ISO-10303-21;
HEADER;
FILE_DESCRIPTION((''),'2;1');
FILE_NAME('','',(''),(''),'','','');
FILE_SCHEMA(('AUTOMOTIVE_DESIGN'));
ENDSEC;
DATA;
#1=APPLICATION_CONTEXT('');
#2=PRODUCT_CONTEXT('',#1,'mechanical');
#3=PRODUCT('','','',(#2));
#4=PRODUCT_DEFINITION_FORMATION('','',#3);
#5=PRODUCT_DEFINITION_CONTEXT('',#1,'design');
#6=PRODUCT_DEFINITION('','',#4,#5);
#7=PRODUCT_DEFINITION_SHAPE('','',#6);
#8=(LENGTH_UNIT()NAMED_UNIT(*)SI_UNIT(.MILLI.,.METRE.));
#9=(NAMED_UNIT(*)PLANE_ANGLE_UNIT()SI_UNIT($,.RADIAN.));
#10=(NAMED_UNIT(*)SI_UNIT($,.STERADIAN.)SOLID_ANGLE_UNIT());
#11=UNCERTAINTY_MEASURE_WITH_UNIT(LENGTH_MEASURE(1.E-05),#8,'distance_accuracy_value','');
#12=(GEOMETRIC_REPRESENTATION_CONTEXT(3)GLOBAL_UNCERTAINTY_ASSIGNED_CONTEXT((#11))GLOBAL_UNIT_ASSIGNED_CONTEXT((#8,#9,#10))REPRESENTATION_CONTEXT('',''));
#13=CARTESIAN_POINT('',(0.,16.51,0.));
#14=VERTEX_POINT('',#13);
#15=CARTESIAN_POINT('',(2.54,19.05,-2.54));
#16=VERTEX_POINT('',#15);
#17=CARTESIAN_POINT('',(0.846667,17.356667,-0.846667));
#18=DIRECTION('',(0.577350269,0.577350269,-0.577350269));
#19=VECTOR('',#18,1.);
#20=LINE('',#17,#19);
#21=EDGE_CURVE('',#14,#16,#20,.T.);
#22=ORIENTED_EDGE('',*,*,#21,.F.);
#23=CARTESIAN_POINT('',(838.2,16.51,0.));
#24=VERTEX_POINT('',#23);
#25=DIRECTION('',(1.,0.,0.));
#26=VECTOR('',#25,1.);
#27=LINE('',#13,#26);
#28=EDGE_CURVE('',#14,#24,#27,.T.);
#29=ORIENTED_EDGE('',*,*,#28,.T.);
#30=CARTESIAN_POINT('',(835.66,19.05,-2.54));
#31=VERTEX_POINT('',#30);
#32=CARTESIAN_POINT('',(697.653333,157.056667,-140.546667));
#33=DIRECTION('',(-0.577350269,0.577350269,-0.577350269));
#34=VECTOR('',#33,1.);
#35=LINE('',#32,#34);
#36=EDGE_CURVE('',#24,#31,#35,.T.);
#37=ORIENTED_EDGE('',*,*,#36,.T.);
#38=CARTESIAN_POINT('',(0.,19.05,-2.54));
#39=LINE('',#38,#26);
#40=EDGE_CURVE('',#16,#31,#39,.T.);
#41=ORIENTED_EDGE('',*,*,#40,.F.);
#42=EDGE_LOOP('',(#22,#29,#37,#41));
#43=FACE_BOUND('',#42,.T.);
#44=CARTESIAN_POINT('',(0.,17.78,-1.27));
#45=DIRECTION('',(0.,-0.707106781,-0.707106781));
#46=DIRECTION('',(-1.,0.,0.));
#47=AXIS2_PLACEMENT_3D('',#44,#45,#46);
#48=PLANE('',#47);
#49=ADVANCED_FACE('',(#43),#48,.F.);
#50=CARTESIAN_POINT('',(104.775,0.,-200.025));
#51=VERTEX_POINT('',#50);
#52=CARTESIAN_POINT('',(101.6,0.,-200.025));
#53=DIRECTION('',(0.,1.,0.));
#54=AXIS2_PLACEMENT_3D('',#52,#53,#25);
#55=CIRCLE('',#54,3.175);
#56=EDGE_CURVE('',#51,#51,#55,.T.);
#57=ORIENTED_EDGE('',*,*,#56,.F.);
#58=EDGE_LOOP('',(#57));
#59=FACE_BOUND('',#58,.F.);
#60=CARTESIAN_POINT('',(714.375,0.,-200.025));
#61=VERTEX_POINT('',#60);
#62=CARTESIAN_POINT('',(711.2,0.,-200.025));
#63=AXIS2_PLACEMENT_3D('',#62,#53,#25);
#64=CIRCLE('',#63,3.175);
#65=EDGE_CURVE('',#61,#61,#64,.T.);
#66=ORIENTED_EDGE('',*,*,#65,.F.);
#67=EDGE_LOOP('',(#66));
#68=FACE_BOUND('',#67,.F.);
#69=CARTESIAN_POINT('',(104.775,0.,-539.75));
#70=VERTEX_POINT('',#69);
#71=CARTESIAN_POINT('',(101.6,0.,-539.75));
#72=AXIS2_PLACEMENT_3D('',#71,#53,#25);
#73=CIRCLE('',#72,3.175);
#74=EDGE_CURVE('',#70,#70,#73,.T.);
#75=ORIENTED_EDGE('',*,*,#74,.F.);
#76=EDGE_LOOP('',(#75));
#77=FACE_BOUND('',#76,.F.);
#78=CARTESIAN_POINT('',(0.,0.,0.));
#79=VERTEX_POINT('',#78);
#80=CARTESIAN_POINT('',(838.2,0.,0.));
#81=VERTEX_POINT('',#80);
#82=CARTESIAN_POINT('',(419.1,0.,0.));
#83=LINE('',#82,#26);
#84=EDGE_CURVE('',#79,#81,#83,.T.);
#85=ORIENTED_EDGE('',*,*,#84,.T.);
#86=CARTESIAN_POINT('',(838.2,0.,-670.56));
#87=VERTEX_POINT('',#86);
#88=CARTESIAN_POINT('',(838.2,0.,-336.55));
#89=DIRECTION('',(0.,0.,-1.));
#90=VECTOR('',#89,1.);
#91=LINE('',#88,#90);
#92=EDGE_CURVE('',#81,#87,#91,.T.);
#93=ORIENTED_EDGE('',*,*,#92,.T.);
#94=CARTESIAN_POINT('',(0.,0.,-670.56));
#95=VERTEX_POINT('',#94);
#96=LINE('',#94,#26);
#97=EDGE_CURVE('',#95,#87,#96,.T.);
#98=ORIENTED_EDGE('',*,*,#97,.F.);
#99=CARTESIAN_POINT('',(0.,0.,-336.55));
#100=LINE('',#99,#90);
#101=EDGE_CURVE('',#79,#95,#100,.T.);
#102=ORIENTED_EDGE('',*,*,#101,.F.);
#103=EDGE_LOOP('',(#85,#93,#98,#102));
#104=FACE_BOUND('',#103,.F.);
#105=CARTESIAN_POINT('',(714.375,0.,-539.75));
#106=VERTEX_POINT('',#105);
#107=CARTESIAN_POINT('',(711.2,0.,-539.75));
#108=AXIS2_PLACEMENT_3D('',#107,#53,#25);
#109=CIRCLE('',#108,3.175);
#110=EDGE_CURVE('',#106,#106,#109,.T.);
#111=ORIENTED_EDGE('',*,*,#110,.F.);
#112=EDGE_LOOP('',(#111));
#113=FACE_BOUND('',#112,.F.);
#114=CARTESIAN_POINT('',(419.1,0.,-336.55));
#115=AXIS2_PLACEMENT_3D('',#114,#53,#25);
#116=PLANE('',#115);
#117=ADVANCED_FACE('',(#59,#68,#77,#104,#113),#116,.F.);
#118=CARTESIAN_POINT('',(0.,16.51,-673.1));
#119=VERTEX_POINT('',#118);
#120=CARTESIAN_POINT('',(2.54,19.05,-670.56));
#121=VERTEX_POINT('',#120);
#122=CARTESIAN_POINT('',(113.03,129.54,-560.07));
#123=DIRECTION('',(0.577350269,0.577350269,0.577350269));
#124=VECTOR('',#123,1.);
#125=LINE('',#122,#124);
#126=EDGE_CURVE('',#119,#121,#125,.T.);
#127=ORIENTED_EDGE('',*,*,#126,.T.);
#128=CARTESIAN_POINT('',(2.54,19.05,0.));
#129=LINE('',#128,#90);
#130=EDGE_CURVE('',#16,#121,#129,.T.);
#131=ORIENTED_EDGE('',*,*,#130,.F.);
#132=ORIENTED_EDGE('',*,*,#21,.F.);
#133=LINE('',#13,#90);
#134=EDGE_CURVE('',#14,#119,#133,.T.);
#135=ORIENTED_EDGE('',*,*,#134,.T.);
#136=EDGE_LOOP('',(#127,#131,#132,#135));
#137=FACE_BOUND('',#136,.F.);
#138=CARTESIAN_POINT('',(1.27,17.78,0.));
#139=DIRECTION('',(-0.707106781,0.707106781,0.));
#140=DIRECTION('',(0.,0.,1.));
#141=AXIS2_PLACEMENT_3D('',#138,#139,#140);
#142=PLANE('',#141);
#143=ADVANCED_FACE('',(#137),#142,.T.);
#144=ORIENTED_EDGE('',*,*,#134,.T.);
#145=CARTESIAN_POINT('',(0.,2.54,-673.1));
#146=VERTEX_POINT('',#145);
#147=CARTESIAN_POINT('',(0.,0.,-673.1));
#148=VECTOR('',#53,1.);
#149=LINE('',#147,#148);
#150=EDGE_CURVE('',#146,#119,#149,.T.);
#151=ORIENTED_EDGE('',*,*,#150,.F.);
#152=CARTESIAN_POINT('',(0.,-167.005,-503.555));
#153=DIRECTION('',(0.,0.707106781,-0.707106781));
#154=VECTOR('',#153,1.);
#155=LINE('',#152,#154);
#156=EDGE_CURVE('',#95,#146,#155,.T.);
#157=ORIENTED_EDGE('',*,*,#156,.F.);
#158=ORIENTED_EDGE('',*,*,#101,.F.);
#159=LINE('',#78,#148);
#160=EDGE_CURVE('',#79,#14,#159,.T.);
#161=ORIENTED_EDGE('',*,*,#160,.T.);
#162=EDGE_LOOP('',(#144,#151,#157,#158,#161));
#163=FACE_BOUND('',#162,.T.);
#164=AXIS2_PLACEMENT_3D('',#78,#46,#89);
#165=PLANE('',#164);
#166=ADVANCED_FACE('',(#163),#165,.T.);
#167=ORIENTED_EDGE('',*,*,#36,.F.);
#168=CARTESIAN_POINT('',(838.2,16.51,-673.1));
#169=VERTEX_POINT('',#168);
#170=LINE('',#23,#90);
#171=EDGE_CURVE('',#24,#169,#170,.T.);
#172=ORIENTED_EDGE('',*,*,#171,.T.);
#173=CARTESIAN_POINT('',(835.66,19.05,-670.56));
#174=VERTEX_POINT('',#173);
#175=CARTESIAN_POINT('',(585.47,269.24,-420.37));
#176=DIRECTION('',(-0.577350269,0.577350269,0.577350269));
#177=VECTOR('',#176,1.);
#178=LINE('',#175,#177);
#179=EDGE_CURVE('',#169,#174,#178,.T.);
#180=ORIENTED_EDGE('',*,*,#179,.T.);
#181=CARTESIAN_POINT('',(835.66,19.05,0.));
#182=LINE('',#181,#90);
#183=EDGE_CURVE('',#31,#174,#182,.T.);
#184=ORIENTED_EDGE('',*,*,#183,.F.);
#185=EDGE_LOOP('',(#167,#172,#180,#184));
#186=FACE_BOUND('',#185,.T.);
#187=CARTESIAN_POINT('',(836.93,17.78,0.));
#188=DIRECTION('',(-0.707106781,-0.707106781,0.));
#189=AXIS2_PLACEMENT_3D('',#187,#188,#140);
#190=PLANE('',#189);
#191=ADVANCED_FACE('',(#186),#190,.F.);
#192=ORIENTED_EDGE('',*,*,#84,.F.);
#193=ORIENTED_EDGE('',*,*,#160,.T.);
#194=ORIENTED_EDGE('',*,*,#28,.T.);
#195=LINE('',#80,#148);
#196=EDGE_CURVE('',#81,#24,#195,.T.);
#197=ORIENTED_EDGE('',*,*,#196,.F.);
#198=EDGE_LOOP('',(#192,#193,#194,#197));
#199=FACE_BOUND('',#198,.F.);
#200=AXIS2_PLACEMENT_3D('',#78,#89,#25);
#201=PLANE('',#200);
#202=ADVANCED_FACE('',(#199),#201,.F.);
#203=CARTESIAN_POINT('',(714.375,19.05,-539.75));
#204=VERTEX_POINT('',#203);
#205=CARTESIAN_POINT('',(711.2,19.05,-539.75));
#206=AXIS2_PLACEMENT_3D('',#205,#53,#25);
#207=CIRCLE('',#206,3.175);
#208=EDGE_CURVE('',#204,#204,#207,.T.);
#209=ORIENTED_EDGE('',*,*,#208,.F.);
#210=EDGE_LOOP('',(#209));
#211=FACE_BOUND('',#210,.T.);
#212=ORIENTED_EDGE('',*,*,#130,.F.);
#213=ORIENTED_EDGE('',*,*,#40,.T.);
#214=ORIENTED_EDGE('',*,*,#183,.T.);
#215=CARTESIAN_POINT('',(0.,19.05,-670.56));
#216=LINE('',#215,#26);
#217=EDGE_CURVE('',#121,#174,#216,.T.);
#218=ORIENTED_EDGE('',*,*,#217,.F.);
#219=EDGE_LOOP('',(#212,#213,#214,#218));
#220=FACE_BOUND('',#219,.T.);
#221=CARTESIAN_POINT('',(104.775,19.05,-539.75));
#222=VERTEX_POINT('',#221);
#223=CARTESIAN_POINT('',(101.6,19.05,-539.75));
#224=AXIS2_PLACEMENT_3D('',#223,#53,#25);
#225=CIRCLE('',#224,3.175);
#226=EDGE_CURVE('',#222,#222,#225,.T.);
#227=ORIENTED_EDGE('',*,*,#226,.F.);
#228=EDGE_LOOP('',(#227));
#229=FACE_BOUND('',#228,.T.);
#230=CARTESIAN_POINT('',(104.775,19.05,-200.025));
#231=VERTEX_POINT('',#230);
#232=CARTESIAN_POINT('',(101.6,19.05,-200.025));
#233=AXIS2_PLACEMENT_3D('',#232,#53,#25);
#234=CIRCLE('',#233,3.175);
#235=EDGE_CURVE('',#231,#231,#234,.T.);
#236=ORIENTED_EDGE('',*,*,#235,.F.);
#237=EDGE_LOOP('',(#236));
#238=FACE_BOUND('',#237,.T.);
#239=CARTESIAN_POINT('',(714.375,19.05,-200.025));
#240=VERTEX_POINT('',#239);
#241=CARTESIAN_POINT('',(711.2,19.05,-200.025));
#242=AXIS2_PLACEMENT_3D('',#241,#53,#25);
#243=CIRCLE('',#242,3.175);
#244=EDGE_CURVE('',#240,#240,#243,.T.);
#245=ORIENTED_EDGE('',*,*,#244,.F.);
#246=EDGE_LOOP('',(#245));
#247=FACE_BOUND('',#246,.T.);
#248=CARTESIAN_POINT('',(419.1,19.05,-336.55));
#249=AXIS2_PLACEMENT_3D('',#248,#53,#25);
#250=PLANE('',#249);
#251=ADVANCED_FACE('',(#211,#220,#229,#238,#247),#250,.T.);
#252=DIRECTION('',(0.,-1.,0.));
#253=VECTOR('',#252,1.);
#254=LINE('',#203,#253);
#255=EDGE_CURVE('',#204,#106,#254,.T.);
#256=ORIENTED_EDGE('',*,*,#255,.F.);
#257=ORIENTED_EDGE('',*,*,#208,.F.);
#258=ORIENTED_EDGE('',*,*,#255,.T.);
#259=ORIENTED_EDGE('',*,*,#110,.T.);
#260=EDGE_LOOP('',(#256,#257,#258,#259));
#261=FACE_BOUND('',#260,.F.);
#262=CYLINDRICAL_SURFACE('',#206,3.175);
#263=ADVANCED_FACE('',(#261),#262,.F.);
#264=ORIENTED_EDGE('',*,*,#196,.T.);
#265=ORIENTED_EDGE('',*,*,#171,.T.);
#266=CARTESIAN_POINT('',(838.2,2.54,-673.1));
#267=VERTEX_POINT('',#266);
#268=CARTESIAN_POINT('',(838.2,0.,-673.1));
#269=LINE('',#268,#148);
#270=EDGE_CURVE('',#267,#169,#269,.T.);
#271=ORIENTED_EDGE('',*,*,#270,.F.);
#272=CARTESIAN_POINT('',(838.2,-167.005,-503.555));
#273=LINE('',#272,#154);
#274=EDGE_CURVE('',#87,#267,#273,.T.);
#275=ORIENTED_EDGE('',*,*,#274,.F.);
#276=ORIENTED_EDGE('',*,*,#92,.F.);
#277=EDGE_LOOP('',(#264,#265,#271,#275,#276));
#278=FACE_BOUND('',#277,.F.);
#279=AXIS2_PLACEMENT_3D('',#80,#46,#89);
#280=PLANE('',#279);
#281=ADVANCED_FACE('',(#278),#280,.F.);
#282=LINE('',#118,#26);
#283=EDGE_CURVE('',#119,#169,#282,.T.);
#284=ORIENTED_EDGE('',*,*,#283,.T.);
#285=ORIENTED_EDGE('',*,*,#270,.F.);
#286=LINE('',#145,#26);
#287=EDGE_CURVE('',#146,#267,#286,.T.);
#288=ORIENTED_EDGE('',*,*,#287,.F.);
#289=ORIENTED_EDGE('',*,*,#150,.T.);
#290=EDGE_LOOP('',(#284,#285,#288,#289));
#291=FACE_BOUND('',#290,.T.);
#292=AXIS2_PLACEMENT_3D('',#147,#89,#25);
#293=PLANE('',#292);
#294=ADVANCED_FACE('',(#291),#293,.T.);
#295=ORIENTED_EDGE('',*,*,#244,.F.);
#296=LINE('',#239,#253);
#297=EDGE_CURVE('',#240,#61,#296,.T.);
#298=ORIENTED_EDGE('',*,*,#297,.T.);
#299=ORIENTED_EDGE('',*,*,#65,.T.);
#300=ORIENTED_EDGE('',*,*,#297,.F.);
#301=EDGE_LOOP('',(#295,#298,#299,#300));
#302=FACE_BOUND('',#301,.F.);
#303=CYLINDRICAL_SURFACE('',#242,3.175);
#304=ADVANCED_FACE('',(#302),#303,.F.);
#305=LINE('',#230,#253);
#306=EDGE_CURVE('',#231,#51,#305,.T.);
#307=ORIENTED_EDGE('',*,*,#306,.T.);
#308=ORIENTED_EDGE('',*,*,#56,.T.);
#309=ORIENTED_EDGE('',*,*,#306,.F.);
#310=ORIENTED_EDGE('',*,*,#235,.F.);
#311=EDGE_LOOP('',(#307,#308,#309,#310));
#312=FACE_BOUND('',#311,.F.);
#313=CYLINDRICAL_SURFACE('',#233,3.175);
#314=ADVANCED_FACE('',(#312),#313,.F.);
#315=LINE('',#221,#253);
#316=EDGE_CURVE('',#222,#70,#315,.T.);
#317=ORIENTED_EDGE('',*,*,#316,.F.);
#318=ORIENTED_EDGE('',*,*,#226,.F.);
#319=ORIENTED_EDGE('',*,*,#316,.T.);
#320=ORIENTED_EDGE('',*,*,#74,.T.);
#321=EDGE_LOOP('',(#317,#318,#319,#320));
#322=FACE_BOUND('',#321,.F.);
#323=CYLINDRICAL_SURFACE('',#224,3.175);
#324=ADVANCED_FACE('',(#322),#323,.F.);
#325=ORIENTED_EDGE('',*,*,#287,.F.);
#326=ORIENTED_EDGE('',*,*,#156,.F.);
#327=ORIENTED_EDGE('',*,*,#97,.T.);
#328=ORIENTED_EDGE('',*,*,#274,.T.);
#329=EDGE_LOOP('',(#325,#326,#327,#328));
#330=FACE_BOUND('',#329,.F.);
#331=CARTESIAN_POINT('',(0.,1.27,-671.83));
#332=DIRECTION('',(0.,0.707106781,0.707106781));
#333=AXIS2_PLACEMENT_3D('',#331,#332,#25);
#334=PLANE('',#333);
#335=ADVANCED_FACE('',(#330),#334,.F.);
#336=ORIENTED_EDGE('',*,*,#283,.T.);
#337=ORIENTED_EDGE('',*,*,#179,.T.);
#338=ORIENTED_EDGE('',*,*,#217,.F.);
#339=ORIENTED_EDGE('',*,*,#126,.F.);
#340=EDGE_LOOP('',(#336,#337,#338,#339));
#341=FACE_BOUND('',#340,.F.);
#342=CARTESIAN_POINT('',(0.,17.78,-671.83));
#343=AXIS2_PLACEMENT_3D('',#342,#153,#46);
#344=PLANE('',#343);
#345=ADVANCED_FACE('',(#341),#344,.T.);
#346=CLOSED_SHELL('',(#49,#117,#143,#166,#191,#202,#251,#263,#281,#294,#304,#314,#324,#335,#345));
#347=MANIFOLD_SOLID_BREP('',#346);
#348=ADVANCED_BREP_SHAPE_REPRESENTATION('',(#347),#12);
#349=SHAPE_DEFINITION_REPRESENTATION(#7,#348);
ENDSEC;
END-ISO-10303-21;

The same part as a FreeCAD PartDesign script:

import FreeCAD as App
import Part
import Sketcher
from FreeCAD import Vector
Q = App.Units.Quantity


def edges_at(feature, points):
    """Names of the edges that pass closest to the given points."""
    edges = feature.Shape.Edges
    near = lambda p: min(range(len(edges)), key=lambda i: edges[i].distToShape(Part.Vertex(*p))[0])
    return sorted({f"Edge{near(p) + 1}" for p in points})


def add_polygon(sketch, points):
    """Adds a closed chain of lines whose ends are joined by coincident constraints."""
    first, n = sketch.GeometryCount, len(points)
    for a, b in zip(points, points[1:] + points[:1]):
        sketch.addGeometry(Part.LineSegment(App.Vector(*a, 0), App.Vector(*b, 0)), False)
    for i in range(n):
        sketch.addConstraint(Sketcher.Constraint("Coincident", first + i, 2, first + (i + 1) % n, 1))

doc = App.newDocument("Part")
params = doc.addObject("Spreadsheet::Sheet", "Params")
for row, (alias, value) in enumerate([
    ("sketch1_width", "33 in"),
    ("sketch1_height", "26.5 in"),
    ("pad1_length", "0.75 in"),
    ("chamfer_size", "0.1 in"),
    ("chamfer2_size", "0.1 in"),
    ("sketch2_diameter", "0.25 in"),
], start=1):
    params.set(f"A{row}", alias)
    params.set(f"B{row}", "=" + value)
    params.setAlias(f"B{row}", alias)

body = doc.addObject("PartDesign::Body", "Body")

# Sketch on XZ plane
sketch1 = body.newObject("Sketcher::SketchObject", "Sketch")
sketch1.AttachmentSupport = (doc.getObject("XZ_Plane"), [""])
sketch1.MapMode = "FlatFace"
add_polygon(sketch1, [(0, -673), (0, 0), (838, 0), (838, -673)])  # lines 0-3
sketch1.addConstraint([
    Sketcher.Constraint("Vertical", 0),
    Sketcher.Constraint("Horizontal", 1),
    Sketcher.Constraint("Vertical", 2),
    Sketcher.Constraint("Horizontal", 3),
    Sketcher.Constraint("Coincident", 0, 2, -1, 1),
    Sketcher.Constraint("DistanceX", 1, 1, 1, 2, Q("33 in")),
    Sketcher.Constraint("DistanceY", 0, 1, 0, 2, Q("26.5 in")),
])
sketch1.setExpression("Constraints[9]", "Params.sketch1_width")
sketch1.setExpression("Constraints[10]", "Params.sketch1_height")
pad1 = body.newObject("PartDesign::Pad", "Pad")
pad1.Profile = sketch1
pad1.setExpression("Length", "Params.pad1_length")
pad1.Reversed = True
doc.recompute()

chamfer = body.newObject("PartDesign::Chamfer", "Chamfer")
chamfer.Base = (pad1, edges_at(pad1, [
    (838.2, 19.05, -336.55),
    (419.1, 19.05, -673.1),
    (0, 19.05, -336.55),
    (419.1, 19.05, 0),
]))
chamfer.setExpression("Size", "Params.chamfer_size")
doc.recompute()

chamfer2 = body.newObject("PartDesign::Chamfer", "Chamfer001")
chamfer2.Base = (chamfer, edges_at(chamfer, [(419.1, 0, -673.1)]))
chamfer2.setExpression("Size", "Params.chamfer2_size")

# Sketch on XZ plane
sketch2 = body.newObject("Sketcher::SketchObject", "Sketch001")
sketch2.AttachmentSupport = (doc.getObject("XZ_Plane"), [""])
sketch2.MapMode = "FlatFace"
sketch2.AttachmentOffset = App.Placement(Vector(0, 0, -0.75 * 25.4), App.Rotation())
sketch2.addGeometry([
    Part.Circle(Vector(101.6, -539.8, 0), Vector(0, 0, 1), 3.2),
    Part.Circle(Vector(101.6, -200, 0), Vector(0, 0, 1), 3.2),
    Part.Circle(Vector(711.2, -539.8, 0), Vector(0, 0, 1), 3.2),
    Part.Circle(Vector(711.2, -200, 0), Vector(0, 0, 1), 3.2),
], False)
sketch2.addConstraint([
    Sketcher.Constraint("Equal", 0, 1),
    Sketcher.Constraint("Equal", 1, 2),
    Sketcher.Constraint("Equal", 2, 3),
    Sketcher.Constraint("Horizontal", 0, 3, 2, 3),
    Sketcher.Constraint("Horizontal", 1, 3, 3, 3),
    Sketcher.Constraint("Vertical", 0, 3, 1, 3),
    Sketcher.Constraint("Vertical", 2, 3, 3, 3),
    Sketcher.Constraint("Diameter", 0, Q("0.25 in")),
    Sketcher.Constraint("DistanceX", -1, 1, 0, 3, Q("4 in")),
    Sketcher.Constraint("DistanceX", -1, 1, 2, 3, Q("28 in")),
    Sketcher.Constraint("DistanceY", 0, 3, -1, 1, Q("21.25 in")),
    Sketcher.Constraint("DistanceY", 1, 3, -1, 1, Q("7.875 in")),
])
sketch2.setExpression("Constraints[7]", "Params.sketch2_diameter")
pocket1 = body.newObject("PartDesign::Pocket", "Pocket")
pocket1.Profile = sketch2
pocket1.Type = "ThroughAll"
pocket1.Reversed = True

doc.recompute()
